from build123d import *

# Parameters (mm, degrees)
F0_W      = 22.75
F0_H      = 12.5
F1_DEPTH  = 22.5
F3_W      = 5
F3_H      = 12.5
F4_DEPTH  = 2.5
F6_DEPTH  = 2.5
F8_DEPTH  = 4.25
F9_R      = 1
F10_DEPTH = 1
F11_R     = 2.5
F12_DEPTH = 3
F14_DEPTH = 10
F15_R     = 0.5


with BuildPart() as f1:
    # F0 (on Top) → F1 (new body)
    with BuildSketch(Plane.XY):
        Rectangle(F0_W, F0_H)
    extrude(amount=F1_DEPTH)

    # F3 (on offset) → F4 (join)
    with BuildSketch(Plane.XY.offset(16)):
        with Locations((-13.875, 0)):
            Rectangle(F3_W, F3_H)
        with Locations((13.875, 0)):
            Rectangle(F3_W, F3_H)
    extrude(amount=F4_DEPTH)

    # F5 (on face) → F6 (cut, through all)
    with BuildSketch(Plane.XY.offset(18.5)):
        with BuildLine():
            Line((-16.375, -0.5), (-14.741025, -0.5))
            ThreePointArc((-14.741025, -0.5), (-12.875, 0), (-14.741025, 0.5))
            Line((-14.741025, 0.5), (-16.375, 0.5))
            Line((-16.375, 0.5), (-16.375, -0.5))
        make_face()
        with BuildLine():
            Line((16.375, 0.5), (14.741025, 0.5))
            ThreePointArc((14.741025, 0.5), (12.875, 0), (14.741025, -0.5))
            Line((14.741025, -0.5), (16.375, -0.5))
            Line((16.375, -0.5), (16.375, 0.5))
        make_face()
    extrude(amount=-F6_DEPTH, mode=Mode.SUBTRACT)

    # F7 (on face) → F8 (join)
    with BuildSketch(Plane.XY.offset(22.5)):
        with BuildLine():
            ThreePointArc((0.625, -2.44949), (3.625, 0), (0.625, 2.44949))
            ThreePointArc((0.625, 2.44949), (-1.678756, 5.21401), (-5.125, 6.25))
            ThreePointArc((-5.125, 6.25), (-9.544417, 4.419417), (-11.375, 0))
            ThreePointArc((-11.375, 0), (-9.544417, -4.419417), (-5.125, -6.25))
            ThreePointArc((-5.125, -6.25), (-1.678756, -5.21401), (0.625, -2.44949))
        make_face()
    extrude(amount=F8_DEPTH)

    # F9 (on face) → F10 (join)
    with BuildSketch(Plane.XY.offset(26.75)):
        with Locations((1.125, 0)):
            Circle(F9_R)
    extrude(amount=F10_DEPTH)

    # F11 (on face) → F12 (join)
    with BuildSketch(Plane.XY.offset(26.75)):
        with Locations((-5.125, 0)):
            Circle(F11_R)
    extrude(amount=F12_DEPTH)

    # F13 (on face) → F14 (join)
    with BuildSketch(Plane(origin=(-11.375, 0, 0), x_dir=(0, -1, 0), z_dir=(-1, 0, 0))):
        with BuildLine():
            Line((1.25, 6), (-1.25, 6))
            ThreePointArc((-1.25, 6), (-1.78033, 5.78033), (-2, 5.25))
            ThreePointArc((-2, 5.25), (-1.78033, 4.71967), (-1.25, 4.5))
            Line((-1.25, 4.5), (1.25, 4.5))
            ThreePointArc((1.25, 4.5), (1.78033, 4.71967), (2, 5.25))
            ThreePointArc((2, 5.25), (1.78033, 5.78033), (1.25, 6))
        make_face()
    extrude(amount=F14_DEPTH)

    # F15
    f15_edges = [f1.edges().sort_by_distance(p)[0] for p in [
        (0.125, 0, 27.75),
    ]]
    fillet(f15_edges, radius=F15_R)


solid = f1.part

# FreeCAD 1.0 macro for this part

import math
import FreeCAD as App
import Part
import Sketcher

V = App.Vector
Q = App.Units.Quantity


def edges_at(feature, points):
    """Names of the edges that pass closest to the given points."""
    edges = feature.Shape.Edges
    near = lambda p: min(range(len(edges)), key=lambda i: edges[i].distToShape(Part.Vertex(*p))[0])
    return sorted({f"Edge{near(p) + 1}" for p in points})


def add_polygon(sketch, points):
    """Adds a closed chain of lines whose ends are joined by coincident constraints."""
    first, n = sketch.GeometryCount, len(points)
    for a, b in zip(points, points[1:] + points[:1]):
        sketch.addGeometry(Part.LineSegment(App.Vector(*a, 0), App.Vector(*b, 0)), False)
    for i in range(n):
        sketch.addConstraint(Sketcher.Constraint("Coincident", first + i, 2, first + (i + 1) % n, 1))

doc = App.newDocument("Part")
body = doc.addObject("PartDesign::Body", "Body")

# Sketch on XY plane
sketch1 = doc.addObject("Sketcher::SketchObject", "Sketch")
body.addObject(sketch1)
sketch1.AttachmentSupport = (doc.XY_Plane, [""])
sketch1.MapMode = "FlatFace"
add_polygon(sketch1, [(-11, 6), (-11, -6), (11, -6), (11, 6)])  # lines 0-3
sketch1.addConstraint(Sketcher.Constraint("Vertical", 0))
sketch1.addConstraint(Sketcher.Constraint("Horizontal", 1))
sketch1.addConstraint(Sketcher.Constraint("Vertical", 2))
sketch1.addConstraint(Sketcher.Constraint("Horizontal", 3))
sketch1.addConstraint(Sketcher.Constraint("Symmetric", 0, 2, 2, 2, -1, 1))
sketch1.addConstraint(Sketcher.Constraint("DistanceY", 0, 2, 0, 1, Q("12.5 mm")))
sketch1.addConstraint(Sketcher.Constraint("DistanceX", 1, 1, 1, 2, Q("22.75 mm")))
pad1 = doc.addObject("PartDesign::Pad", "Pad")
body.addObject(pad1)
pad1.Profile = sketch1
pad1.Length = 22.5

# Sketch on XY plane
sketch2 = doc.addObject("Sketcher::SketchObject", "Sketch001")
body.addObject(sketch2)
sketch2.AttachmentSupport = (doc.XY_Plane, [""])
sketch2.MapMode = "FlatFace"
sketch2.AttachmentOffset = App.Placement(V(0, 0, 16), App.Rotation())
add_polygon(sketch2, [(-16, 6), (-16, -6), (-11, -6), (-11, 6)])  # lines 0-3
add_polygon(sketch2, [(11, 6), (11, -6), (16, -6), (16, 6)])  # lines 4-7
sketch2.addConstraint(Sketcher.Constraint("Vertical", 0))
sketch2.addConstraint(Sketcher.Constraint("Horizontal", 1))
sketch2.addConstraint(Sketcher.Constraint("Vertical", 2))
sketch2.addConstraint(Sketcher.Constraint("Horizontal", 3))
sketch2.addConstraint(Sketcher.Constraint("Vertical", 4))
sketch2.addConstraint(Sketcher.Constraint("Horizontal", 5))
sketch2.addConstraint(Sketcher.Constraint("Vertical", 6))
sketch2.addConstraint(Sketcher.Constraint("Horizontal", 7))
sketch2.addConstraint(Sketcher.Constraint("Symmetric", 2, 2, 4, 2, -1, 1))
sketch2.addConstraint(Sketcher.Constraint("Symmetric", 0, 2, 6, 2, -1, 1))
sketch2.addConstraint(Sketcher.Constraint("Horizontal", 1, 2, 4, 2))
sketch2.addConstraint(Sketcher.Constraint("DistanceX", 1, 1, 1, 2, Q("5 mm")))
sketch2.addConstraint(Sketcher.Constraint("DistanceY", 0, 2, 0, 1, Q("12.5 mm")))
sketch2.addConstraint(Sketcher.Constraint("DistanceX", 1, 2, 4, 2, Q("22.75 mm")))
pad2 = doc.addObject("PartDesign::Pad", "Pad001")
body.addObject(pad2)
pad2.Profile = sketch2
pad2.Length = 2.5

# Sketch on XY plane
sketch3 = doc.addObject("Sketcher::SketchObject", "Sketch002")
body.addObject(sketch3)
sketch3.AttachmentSupport = (doc.XY_Plane, [""])
sketch3.MapMode = "FlatFace"
sketch3.AttachmentOffset = App.Placement(V(0, 0, 18.5), App.Rotation())
sketch3.addGeometry(Part.LineSegment(V(-16.4, -0.5, 0), V(-14.7, -0.5, 0)), False)
sketch3.addGeometry(Part.ArcOfCircle(Part.Circle(V(-13.9, 0, 0), V(0, 0, 1), 1), math.radians(-150), math.radians(150)), False)
sketch3.addGeometry(Part.LineSegment(V(-14.7, 0.5, 0), V(-16.4, 0.5, 0)), False)
sketch3.addGeometry(Part.LineSegment(V(-16.4, 0.5, 0), V(-16.4, -0.5, 0)), False)
sketch3.addGeometry(Part.LineSegment(V(16.4, 0.5, 0), V(14.7, 0.5, 0)), False)
sketch3.addGeometry(Part.ArcOfCircle(Part.Circle(V(13.9, 0, 0), V(0, 0, 1), 1), math.radians(30), math.radians(330)), False)
sketch3.addGeometry(Part.LineSegment(V(14.7, -0.5, 0), V(16.4, -0.5, 0)), False)
sketch3.addGeometry(Part.LineSegment(V(16.4, -0.5, 0), V(16.4, 0.5, 0)), False)
sketch3.addConstraint(Sketcher.Constraint("Coincident", 0, 2, 1, 1))
sketch3.addConstraint(Sketcher.Constraint("Coincident", 1, 2, 2, 1))
sketch3.addConstraint(Sketcher.Constraint("Coincident", 2, 2, 3, 1))
sketch3.addConstraint(Sketcher.Constraint("Coincident", 3, 2, 0, 1))
sketch3.addConstraint(Sketcher.Constraint("Coincident", 4, 2, 5, 1))
sketch3.addConstraint(Sketcher.Constraint("Coincident", 5, 2, 6, 1))
sketch3.addConstraint(Sketcher.Constraint("Coincident", 6, 2, 7, 1))
sketch3.addConstraint(Sketcher.Constraint("Coincident", 7, 2, 4, 1))
sketch3.addConstraint(Sketcher.Constraint("Horizontal", 0))
sketch3.addConstraint(Sketcher.Constraint("Horizontal", 2))
sketch3.addConstraint(Sketcher.Constraint("Vertical", 3))
sketch3.addConstraint(Sketcher.Constraint("Horizontal", 4))
sketch3.addConstraint(Sketcher.Constraint("Horizontal", 6))
sketch3.addConstraint(Sketcher.Constraint("Vertical", 7))
sketch3.addConstraint(Sketcher.Constraint("Equal", 1, 5))
sketch3.addConstraint(Sketcher.Constraint("Symmetric", 1, 3, 5, 3, -1, 1))
sketch3.addConstraint(Sketcher.Constraint("Symmetric", 2, 2, 6, 2, -1, 1))
sketch3.addConstraint(Sketcher.Constraint("Symmetric", 1, 2, 4, 2, -2))
sketch3.addConstraint(Sketcher.Constraint("Horizontal", 3, 2, 5, 2))
sketch3.addConstraint(Sketcher.Constraint("Radius", 1, Q("1 mm")))
sketch3.addConstraint(Sketcher.Constraint("DistanceY", 3, 2, 3, 1, Q("1 mm")))
sketch3.addConstraint(Sketcher.Constraint("DistanceX", 2, 2, 1, 3, Q("2.5 mm")))
sketch3.addConstraint(Sketcher.Constraint("DistanceX", 1, 3, 5, 3, Q("27.75 mm")))
pocket1 = doc.addObject("PartDesign::Pocket", "Pocket")
body.addObject(pocket1)
pocket1.Profile = sketch3
pocket1.Type = "ThroughAll"

# Sketch on XY plane
sketch4 = doc.addObject("Sketcher::SketchObject", "Sketch003")
body.addObject(sketch4)
sketch4.AttachmentSupport = (doc.XY_Plane, [""])
sketch4.MapMode = "FlatFace"
sketch4.AttachmentOffset = App.Placement(V(0, 0, 22.5), App.Rotation())
sketch4.addGeometry(Part.ArcOfCircle(Part.Circle(V(1.1, 0, 0), V(0, 0, 1), 2.5), math.radians(-102), math.radians(102)), False)
sketch4.addGeometry(Part.ArcOfCircle(Part.Circle(V(-5.1, 0, 0), V(0, 0, 1), 6.3), math.radians(23), math.radians(90)), False)
sketch4.addGeometry(Part.ArcOfCircle(Part.Circle(V(-5.1, 0, 0), V(0, 0, 1), 6.3), math.radians(90), math.radians(180)), False)
sketch4.addGeometry(Part.ArcOfCircle(Part.Circle(V(-5.1, 0, 0), V(0, 0, 1), 6.3), math.radians(-180), math.radians(-90)), False)
sketch4.addGeometry(Part.ArcOfCircle(Part.Circle(V(-5.1, 0, 0), V(0, 0, 1), 6.3), math.radians(-90), math.radians(-23)), False)
sketch4.addConstraint(Sketcher.Constraint("Coincident", 0, 2, 1, 1))
sketch4.addConstraint(Sketcher.Constraint("Tangent", 1, 2, 2, 1))
sketch4.addConstraint(Sketcher.Constraint("Tangent", 2, 2, 3, 1))
sketch4.addConstraint(Sketcher.Constraint("Tangent", 3, 2, 4, 1))
sketch4.addConstraint(Sketcher.Constraint("Coincident", 4, 2, 0, 1))
sketch4.addConstraint(Sketcher.Constraint("Coincident", 3, 3, 1, 3))
sketch4.addConstraint(Sketcher.Constraint("Equal", 3, 4))
sketch4.addConstraint(Sketcher.Constraint("Symmetric", 1, 2, 3, 2, -1))
sketch4.addConstraint(Sketcher.Constraint("PointOnObject", 0, 3, -1))
sketch4.addConstraint(Sketcher.Constraint("PointOnObject", 2, 2, -1))
sketch4.addConstraint(Sketcher.Constraint("Vertical", 4, 3, 1, 2))
sketch4.addConstraint(Sketcher.Constraint("Radius", 0, Q("2.5 mm")))
sketch4.addConstraint(Sketcher.Constraint("Radius", 1, Q("6.250001 mm")))
sketch4.addConstraint(Sketcher.Constraint("DistanceX", 0, 2, 0, 3, Q("0.5 mm")))
sketch4.addConstraint(Sketcher.Constraint("DistanceX", -1, 1, 0, 3, Q("1.125 mm")))
pad3 = doc.addObject("PartDesign::Pad", "Pad002")
body.addObject(pad3)
pad3.Profile = sketch4
pad3.Length = 4.25

# Sketch on XY plane
sketch5 = doc.addObject("Sketcher::SketchObject", "Sketch004")
body.addObject(sketch5)
sketch5.AttachmentSupport = (doc.XY_Plane, [""])
sketch5.MapMode = "FlatFace"
sketch5.AttachmentOffset = App.Placement(V(0, 0, 26.75), App.Rotation())
sketch5.addGeometry(Part.Circle(V(1.1, 0, 0), V(0, 0, 1), 1), False)
sketch5.addConstraint(Sketcher.Constraint("PointOnObject", 0, 3, -1))
sketch5.addConstraint(Sketcher.Constraint("Diameter", 0, Q("2 mm")))
sketch5.addConstraint(Sketcher.Constraint("DistanceX", -1, 1, 0, 3, Q("1.125 mm")))
pad4 = doc.addObject("PartDesign::Pad", "Pad003")
body.addObject(pad4)
pad4.Profile = sketch5
pad4.Length = 1

# Sketch on XY plane
sketch6 = doc.addObject("Sketcher::SketchObject", "Sketch005")
body.addObject(sketch6)
sketch6.AttachmentSupport = (doc.XY_Plane, [""])
sketch6.MapMode = "FlatFace"
sketch6.AttachmentOffset = App.Placement(V(0, 0, 26.75), App.Rotation())
sketch6.addGeometry(Part.Circle(V(-5.1, 0, 0), V(0, 0, 1), 2.5), False)
sketch6.addConstraint(Sketcher.Constraint("PointOnObject", 0, 3, -1))
sketch6.addConstraint(Sketcher.Constraint("Diameter", 0, Q("5 mm")))
sketch6.addConstraint(Sketcher.Constraint("DistanceX", 0, 3, -1, 1, Q("5.125 mm")))
pad5 = doc.addObject("PartDesign::Pad", "Pad004")
body.addObject(pad5)
pad5.Profile = sketch6
pad5.Length = 3

# Sketch on YZ plane
sketch7 = doc.addObject("Sketcher::SketchObject", "Sketch006")
body.addObject(sketch7)
sketch7.AttachmentSupport = (doc.YZ_Plane, [""])
sketch7.MapMode = "FlatFace"
sketch7.AttachmentOffset = App.Placement(V(0, 0, -11.375), App.Rotation())
sketch7.addGeometry(Part.LineSegment(V(-1.2, 6, 0), V(1.2, 6, 0)), False)
sketch7.addGeometry(Part.ArcOfCircle(Part.Circle(V(1.2, 5.2, 0), V(0, 0, 1), 0.8), math.radians(0), math.radians(90)), False)
sketch7.addGeometry(Part.ArcOfCircle(Part.Circle(V(1.2, 5.3, 0), V(0, 0, 1), 0.8), math.radians(-90), math.radians(0)), False)
sketch7.addGeometry(Part.LineSegment(V(1.2, 4.5, 0), V(-1.2, 4.5, 0)), False)
sketch7.addGeometry(Part.ArcOfCircle(Part.Circle(V(-1.2, 5.3, 0), V(0, 0, 1), 0.8), math.radians(-180), math.radians(-90)), False)
sketch7.addGeometry(Part.ArcOfCircle(Part.Circle(V(-1.2, 5.2, 0), V(0, 0, 1), 0.8), math.radians(90), math.radians(180)), False)
sketch7.addConstraint(Sketcher.Constraint("Tangent", 0, 2, 1, 2))
sketch7.addConstraint(Sketcher.Constraint("Tangent", 1, 1, 2, 2))
sketch7.addConstraint(Sketcher.Constraint("Tangent", 2, 1, 3, 1))
sketch7.addConstraint(Sketcher.Constraint("Tangent", 3, 2, 4, 2))
sketch7.addConstraint(Sketcher.Constraint("Tangent", 4, 1, 5, 2))
sketch7.addConstraint(Sketcher.Constraint("Tangent", 5, 1, 0, 1))
sketch7.addConstraint(Sketcher.Constraint("Horizontal", 0))
sketch7.addConstraint(Sketcher.Constraint("Horizontal", 3))
sketch7.addConstraint(Sketcher.Constraint("Equal", 1, 2))
sketch7.addConstraint(Sketcher.Constraint("Equal", 2, 4))
sketch7.addConstraint(Sketcher.Constraint("Symmetric", 1, 1, 4, 1, -2))
sketch7.addConstraint(Sketcher.Constraint("Horizontal", 5, 3, 1, 1))
sketch7.addConstraint(Sketcher.Constraint("Radius", 1, Q("0.75 mm")))
sketch7.addConstraint(Sketcher.Constraint("DistanceX", 0, 1, 0, 2, Q("2.5 mm")))
sketch7.addConstraint(Sketcher.Constraint("DistanceY", -1, 1, 0, 2, Q("6 mm")))
pad6 = doc.addObject("PartDesign::Pad", "Pad005")
body.addObject(pad6)
pad6.Profile = sketch7
pad6.Length = 10
pad6.Reversed = True
doc.recompute()

fillet = doc.addObject("PartDesign::Fillet", "Fillet")
body.addObject(fillet)
fillet.Base = (pad6, edges_at(pad6, [(0.125, 0, 27.75)]))
fillet.Radius = 0.5

doc.recompute()
